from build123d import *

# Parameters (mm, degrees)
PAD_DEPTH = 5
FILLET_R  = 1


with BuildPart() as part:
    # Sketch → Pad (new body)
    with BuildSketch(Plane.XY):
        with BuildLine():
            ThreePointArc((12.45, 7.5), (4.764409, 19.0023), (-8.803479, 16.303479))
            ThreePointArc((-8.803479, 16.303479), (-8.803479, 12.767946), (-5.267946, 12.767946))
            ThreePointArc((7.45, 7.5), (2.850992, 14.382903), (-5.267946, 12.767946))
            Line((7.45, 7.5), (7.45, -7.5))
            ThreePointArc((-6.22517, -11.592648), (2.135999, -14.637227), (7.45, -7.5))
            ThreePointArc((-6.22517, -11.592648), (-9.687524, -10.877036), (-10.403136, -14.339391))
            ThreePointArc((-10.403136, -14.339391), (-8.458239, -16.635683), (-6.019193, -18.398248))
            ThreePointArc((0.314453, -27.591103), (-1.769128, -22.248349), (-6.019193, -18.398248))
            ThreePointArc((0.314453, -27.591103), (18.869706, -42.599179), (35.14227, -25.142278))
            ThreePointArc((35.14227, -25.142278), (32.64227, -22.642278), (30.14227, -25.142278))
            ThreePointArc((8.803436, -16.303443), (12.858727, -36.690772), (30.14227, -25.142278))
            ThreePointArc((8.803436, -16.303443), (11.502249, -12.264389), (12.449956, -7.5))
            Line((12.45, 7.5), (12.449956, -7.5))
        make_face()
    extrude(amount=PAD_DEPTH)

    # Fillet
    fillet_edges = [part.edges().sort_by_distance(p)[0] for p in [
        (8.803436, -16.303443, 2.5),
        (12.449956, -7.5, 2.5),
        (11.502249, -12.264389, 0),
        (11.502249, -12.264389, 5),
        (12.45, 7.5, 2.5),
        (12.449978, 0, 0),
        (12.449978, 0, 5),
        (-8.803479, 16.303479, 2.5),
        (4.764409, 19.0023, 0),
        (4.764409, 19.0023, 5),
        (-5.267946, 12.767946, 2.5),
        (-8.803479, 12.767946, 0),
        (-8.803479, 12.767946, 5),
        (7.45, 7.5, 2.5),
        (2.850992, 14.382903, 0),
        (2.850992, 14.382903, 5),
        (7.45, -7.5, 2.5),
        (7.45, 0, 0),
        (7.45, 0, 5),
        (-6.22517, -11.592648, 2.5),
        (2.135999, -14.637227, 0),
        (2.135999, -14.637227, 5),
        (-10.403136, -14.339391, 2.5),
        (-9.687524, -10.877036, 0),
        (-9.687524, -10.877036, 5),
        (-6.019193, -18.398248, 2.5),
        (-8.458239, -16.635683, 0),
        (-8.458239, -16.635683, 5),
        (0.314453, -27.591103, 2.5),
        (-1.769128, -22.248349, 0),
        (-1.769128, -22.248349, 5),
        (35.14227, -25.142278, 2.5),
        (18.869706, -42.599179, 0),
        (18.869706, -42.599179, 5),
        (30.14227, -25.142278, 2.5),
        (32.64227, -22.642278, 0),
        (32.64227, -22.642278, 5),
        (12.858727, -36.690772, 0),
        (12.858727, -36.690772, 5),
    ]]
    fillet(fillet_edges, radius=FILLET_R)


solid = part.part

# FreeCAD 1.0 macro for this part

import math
import FreeCAD as App
import Part
import Sketcher
Q = App.Units.Quantity

doc = App.newDocument("Part")
body = doc.addObject("PartDesign::Body", "Body")

# Sketch on XY plane
sketch1 = body.newObject("Sketcher::SketchObject", "Sketch")
sketch1.AttachmentSupport = (doc.getObject("XY_Plane"), [""])
sketch1.MapMode = "FlatFace"
sketch1.addGeometry([
    Part.ArcOfCircle(Part.Circle(App.Vector(0, 7.5, 0), App.Vector(0, 0, 1), 12.45), math.radians(-0.000001), math.radians(135.000002)),  # 0
    Part.ArcOfCircle(Part.Circle(App.Vector(-7.035712, 14.535713, 0), App.Vector(0, 0, 1), 2.499999), math.radians(135), math.radians(315)),  # 1
    Part.ArcOfCircle(Part.Circle(App.Vector(0, 7.500001, 0), App.Vector(0, 0, 1), 7.45), math.radians(-0.000004), math.radians(135.000002)),  # 2
    Part.LineSegment(App.Vector(7.45, 7.5, 0), App.Vector(7.45, -7.5, 0)),  # 3
    Part.ArcOfCircle(Part.Circle(App.Vector(0, -7.5, 0), App.Vector(0, 0, 1), 7.45), math.radians(-146.677656), math.radians(-0.000002)),  # 4
    Part.ArcOfCircle(Part.Circle(App.Vector(-8.314153, -12.966019, 0), App.Vector(0, 0, 1), 2.5), math.radians(33.322335), math.radians(213.322341)),  # 5
    Part.ArcOfCircle(Part.Circle(App.Vector(-0.00001, -7.500009, 0), App.Vector(0, 0, 1), 12.449987), math.radians(-146.67767), math.radians(-118.912215)),  # 6
    Part.ArcOfCircle(Part.Circle(App.Vector(-12.062562, -29.340266, 0), App.Vector(0, 0, 1), 12.500002), math.radians(8.04397), math.radians(61.08776)),  # 7
    Part.ArcOfCircle(Part.Circle(App.Vector(17.64227, -25.142278, 0), App.Vector(0, 0, 1), 17.5), math.radians(-171.956039), math.radians(0)),  # 8
    Part.ArcOfCircle(Part.Circle(App.Vector(32.64227, -25.142278, 0), App.Vector(0, 0, 1), 2.5), math.radians(0), math.radians(180)),  # 9
    Part.ArcOfCircle(Part.Circle(App.Vector(17.64227, -25.142278, 0), App.Vector(0, 0, 1), 12.5), math.radians(134.999997), math.radians(360.000001)),  # 10
    Part.ArcOfCircle(Part.Circle(App.Vector(-0.00005, -7.499962, 0), App.Vector(0, 0, 1), 12.450006), math.radians(-44.999986), math.radians(-0.000176)),  # 11
    Part.LineSegment(App.Vector(12.449956, -7.5, 0), App.Vector(12.45, 7.5, 0)),  # 12
], False)
sketch1.addConstraint([
    Sketcher.Constraint("Coincident", 0, 2, 1, 1),
    Sketcher.Constraint("Coincident", 1, 2, 2, 2),
    Sketcher.Constraint("Coincident", 2, 1, 3, 1),
    Sketcher.Constraint("Coincident", 3, 2, 4, 2),
    Sketcher.Constraint("Coincident", 4, 1, 5, 1),
    Sketcher.Constraint("Coincident", 5, 2, 6, 1),
    Sketcher.Constraint("Coincident", 6, 2, 7, 2),
    Sketcher.Constraint("Coincident", 7, 1, 8, 1),
    Sketcher.Constraint("Coincident", 8, 2, 9, 1),
    Sketcher.Constraint("Coincident", 9, 2, 10, 2),
    Sketcher.Constraint("Coincident", 10, 1, 11, 1),
    Sketcher.Constraint("Coincident", 11, 2, 12, 1),
    Sketcher.Constraint("Coincident", 12, 2, 0, 1),
    Sketcher.Constraint("Vertical", 3),
    Sketcher.Constraint("Coincident", 2, 3, 0, 3),
    Sketcher.Constraint("Coincident", 10, 3, 8, 3),
    Sketcher.Constraint("PointOnObject", 0, 3, -2),
    Sketcher.Constraint("PointOnObject", 4, 3, -2),
    Sketcher.Constraint("Radius", 1, Q("2.499999 mm")),
    Sketcher.Constraint("Radius", 5, Q("2.5 mm")),
    Sketcher.Constraint("Radius", 8, Q("17.5 mm")),
    Sketcher.Constraint("Radius", 9, Q("2.5 mm")),
    Sketcher.Constraint("DistanceY", 3, 2, 3, 1, Q("15 mm")),
    Sketcher.Constraint("Radius", 0, Q("12.45 mm")),
    Sketcher.Constraint("Distance", 12, Q("15 mm")),
    Sketcher.Constraint("DistanceY", 4, 3, 0, 3, Q("15 mm")),
    Sketcher.Constraint("DistanceY", 3, 2, 12, 2, Q("15 mm")),
    Sketcher.Constraint("DistanceY", -1, 1, 0, 3, Q("7.5 mm")),
    Sketcher.Constraint("DistanceY", -1, 1, 2, 1, Q("7.5 mm")),
    Sketcher.Constraint("Radius", 6, Q("12.449987 mm")),
    Sketcher.Constraint("Radius", 7, Q("12.500002 mm")),
    Sketcher.Constraint("Radius", 11, Q("12.450006 mm")),
    Sketcher.Constraint("DistanceY", 6, 2, 4, 1, Q("6.8056 mm")),
    Sketcher.Constraint("DistanceY", 5, 3, -1, 1, Q("12.966019 mm")),
    Sketcher.Constraint("DistanceY", 6, 3, -1, 1, Q("7.500009 mm")),
    Sketcher.Constraint("DistanceX", 7, 3, -1, 1, Q("12.062562 mm")),
    Sketcher.Constraint("DistanceX", -1, 1, 8, 3, Q("17.64227 mm")),
    Sketcher.Constraint("DistanceY", 9, 3, -1, 1, Q("25.142278 mm")),
    Sketcher.Constraint("DistanceY", 11, 3, -1, 1, Q("7.499962 mm")),
    Sketcher.Constraint("DistanceX", 0, 2, -1, 1, Q("8.803479 mm")),
    Sketcher.Constraint("DistanceX", 4, 1, -1, 1, Q("6.22517 mm")),
    Sketcher.Constraint("DistanceY", 5, 2, -1, 1, Q("14.339391 mm")),
    Sketcher.Constraint("DistanceY", 8, 2, -1, 1, Q("25.142278 mm")),
    Sketcher.Constraint("DistanceY", 9, 2, -1, 1, Q("25.142278 mm")),
    Sketcher.Constraint("DistanceY", 2, 3, 1, 3, Q("7.035712 mm")),
    Sketcher.Constraint("DistanceX", 5, 2, 7, 1, Q("10.717589 mm")),
    Sketcher.Constraint("DistanceY", 10, 1, 11, 3, Q("8.803481 mm")),
    Sketcher.Constraint("DistanceX", 1, 2, -1, 1, Q("5.267946 mm")),
])
pad1 = body.newObject("PartDesign::Pad", "Pad")
pad1.Profile = sketch1
pad1.Length = 5
doc.recompute()

fillet = body.newObject("PartDesign::Fillet", "Fillet")
fillet.Base = (pad1, ["Edge1"])
fillet.UseAllEdges = True
fillet.Radius = 1

doc.recompute()
